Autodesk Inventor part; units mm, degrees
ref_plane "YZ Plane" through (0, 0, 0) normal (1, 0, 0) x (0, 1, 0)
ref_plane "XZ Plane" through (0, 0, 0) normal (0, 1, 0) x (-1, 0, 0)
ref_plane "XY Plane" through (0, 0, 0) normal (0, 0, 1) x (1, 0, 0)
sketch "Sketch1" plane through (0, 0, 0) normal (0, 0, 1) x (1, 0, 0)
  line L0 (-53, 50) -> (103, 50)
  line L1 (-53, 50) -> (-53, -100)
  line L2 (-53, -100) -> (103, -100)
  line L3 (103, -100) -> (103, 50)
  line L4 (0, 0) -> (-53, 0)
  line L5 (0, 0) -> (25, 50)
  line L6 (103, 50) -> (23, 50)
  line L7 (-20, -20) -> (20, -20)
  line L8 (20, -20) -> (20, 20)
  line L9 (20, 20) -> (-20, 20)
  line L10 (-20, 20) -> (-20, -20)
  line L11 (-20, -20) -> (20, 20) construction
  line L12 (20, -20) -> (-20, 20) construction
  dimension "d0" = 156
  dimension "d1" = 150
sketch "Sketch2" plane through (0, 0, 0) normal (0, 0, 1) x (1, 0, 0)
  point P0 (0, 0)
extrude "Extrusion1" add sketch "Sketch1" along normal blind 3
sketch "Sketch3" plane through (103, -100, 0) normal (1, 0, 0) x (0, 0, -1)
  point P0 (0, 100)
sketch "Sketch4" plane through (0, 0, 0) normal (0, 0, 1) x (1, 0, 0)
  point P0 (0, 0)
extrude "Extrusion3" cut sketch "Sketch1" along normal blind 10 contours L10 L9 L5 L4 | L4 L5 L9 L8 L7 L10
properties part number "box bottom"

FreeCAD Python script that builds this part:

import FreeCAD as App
import Part
import Sketcher

V = App.Vector


def add_polygon(sketch, points):
    """Adds a closed chain of lines whose ends are joined by coincident constraints."""
    first, n = sketch.GeometryCount, len(points)
    for a, b in zip(points, points[1:] + points[:1]):
        sketch.addGeometry(Part.LineSegment(App.Vector(*a, 0), App.Vector(*b, 0)), False)
    for i in range(n):
        sketch.addConstraint(Sketcher.Constraint("Coincident", first + i, 2, first + (i + 1) % n, 1))

doc = App.newDocument("Part")
params = doc.addObject("Spreadsheet::Sheet", "Params")
for row, (alias, value) in enumerate([
    ("sketch1_width", "156 mm"),
    ("sketch1_height", "150 mm"),
    ("pad1_length", "3 mm"),
    ("sketch2_width", "40 mm"),
    ("pocket1_length", "10 mm"),
], start=1):
    params.set(f"A{row}", alias)
    params.set(f"B{row}", "=" + value)
    params.setAlias(f"B{row}", alias)

body = doc.addObject("PartDesign::Body", "Body")

# Sketch on XY plane
sketch1 = doc.addObject("Sketcher::SketchObject", "Sketch")
body.addObject(sketch1)
sketch1.AttachmentSupport = (doc.XY_Plane, [""])
sketch1.MapMode = "FlatFace"
add_polygon(sketch1, [(-53, 50), (-53, -100), (103, -100), (103, 50)])  # lines 0-3
sketch1.addConstraint(Sketcher.Constraint("Vertical", 0))
sketch1.addConstraint(Sketcher.Constraint("Horizontal", 1))
sketch1.addConstraint(Sketcher.Constraint("Vertical", 2))
sketch1.addConstraint(Sketcher.Constraint("Horizontal", 3))
sketch1.addConstraint(Sketcher.Constraint("DistanceX", 1, 1, 1, 2, 156.0))
sketch1.addConstraint(Sketcher.Constraint("DistanceY", 0, 2, 0, 1, 150.0))
sketch1.addConstraint(Sketcher.Constraint("DistanceX", 0, 2, -1, 1, 53.0))
sketch1.addConstraint(Sketcher.Constraint("DistanceY", 0, 2, -1, 1, 100.0))
sketch1.setExpression("Constraints[8]", "Params.sketch1_width")
sketch1.setExpression("Constraints[9]", "Params.sketch1_height")
pad1 = doc.addObject("PartDesign::Pad", "Pad")
body.addObject(pad1)
pad1.Profile = sketch1
pad1.setExpression("Length", "Params.pad1_length")

# Sketch on XY plane
sketch2 = doc.addObject("Sketcher::SketchObject", "Sketch001")
body.addObject(sketch2)
sketch2.AttachmentSupport = (doc.XY_Plane, [""])
sketch2.MapMode = "FlatFace"
add_polygon(sketch2, [(-20, 20), (-20, -20), (20, -20), (20, 20)])  # lines 0-3
sketch2.addConstraint(Sketcher.Constraint("Vertical", 0))
sketch2.addConstraint(Sketcher.Constraint("Horizontal", 1))
sketch2.addConstraint(Sketcher.Constraint("Vertical", 2))
sketch2.addConstraint(Sketcher.Constraint("Horizontal", 3))
sketch2.addConstraint(Sketcher.Constraint("Symmetric", 0, 2, 2, 2, -1, 1))
sketch2.addConstraint(Sketcher.Constraint("Equal", 3, 0))
sketch2.addConstraint(Sketcher.Constraint("DistanceX", 1, 1, 1, 2, 40.0))
sketch2.setExpression("Constraints[10]", "Params.sketch2_width")
pocket1 = doc.addObject("PartDesign::Pocket", "Pocket")
body.addObject(pocket1)
pocket1.Profile = sketch2
pocket1.setExpression("Length", "Params.pocket1_length")
pocket1.Reversed = True

doc.recompute()
